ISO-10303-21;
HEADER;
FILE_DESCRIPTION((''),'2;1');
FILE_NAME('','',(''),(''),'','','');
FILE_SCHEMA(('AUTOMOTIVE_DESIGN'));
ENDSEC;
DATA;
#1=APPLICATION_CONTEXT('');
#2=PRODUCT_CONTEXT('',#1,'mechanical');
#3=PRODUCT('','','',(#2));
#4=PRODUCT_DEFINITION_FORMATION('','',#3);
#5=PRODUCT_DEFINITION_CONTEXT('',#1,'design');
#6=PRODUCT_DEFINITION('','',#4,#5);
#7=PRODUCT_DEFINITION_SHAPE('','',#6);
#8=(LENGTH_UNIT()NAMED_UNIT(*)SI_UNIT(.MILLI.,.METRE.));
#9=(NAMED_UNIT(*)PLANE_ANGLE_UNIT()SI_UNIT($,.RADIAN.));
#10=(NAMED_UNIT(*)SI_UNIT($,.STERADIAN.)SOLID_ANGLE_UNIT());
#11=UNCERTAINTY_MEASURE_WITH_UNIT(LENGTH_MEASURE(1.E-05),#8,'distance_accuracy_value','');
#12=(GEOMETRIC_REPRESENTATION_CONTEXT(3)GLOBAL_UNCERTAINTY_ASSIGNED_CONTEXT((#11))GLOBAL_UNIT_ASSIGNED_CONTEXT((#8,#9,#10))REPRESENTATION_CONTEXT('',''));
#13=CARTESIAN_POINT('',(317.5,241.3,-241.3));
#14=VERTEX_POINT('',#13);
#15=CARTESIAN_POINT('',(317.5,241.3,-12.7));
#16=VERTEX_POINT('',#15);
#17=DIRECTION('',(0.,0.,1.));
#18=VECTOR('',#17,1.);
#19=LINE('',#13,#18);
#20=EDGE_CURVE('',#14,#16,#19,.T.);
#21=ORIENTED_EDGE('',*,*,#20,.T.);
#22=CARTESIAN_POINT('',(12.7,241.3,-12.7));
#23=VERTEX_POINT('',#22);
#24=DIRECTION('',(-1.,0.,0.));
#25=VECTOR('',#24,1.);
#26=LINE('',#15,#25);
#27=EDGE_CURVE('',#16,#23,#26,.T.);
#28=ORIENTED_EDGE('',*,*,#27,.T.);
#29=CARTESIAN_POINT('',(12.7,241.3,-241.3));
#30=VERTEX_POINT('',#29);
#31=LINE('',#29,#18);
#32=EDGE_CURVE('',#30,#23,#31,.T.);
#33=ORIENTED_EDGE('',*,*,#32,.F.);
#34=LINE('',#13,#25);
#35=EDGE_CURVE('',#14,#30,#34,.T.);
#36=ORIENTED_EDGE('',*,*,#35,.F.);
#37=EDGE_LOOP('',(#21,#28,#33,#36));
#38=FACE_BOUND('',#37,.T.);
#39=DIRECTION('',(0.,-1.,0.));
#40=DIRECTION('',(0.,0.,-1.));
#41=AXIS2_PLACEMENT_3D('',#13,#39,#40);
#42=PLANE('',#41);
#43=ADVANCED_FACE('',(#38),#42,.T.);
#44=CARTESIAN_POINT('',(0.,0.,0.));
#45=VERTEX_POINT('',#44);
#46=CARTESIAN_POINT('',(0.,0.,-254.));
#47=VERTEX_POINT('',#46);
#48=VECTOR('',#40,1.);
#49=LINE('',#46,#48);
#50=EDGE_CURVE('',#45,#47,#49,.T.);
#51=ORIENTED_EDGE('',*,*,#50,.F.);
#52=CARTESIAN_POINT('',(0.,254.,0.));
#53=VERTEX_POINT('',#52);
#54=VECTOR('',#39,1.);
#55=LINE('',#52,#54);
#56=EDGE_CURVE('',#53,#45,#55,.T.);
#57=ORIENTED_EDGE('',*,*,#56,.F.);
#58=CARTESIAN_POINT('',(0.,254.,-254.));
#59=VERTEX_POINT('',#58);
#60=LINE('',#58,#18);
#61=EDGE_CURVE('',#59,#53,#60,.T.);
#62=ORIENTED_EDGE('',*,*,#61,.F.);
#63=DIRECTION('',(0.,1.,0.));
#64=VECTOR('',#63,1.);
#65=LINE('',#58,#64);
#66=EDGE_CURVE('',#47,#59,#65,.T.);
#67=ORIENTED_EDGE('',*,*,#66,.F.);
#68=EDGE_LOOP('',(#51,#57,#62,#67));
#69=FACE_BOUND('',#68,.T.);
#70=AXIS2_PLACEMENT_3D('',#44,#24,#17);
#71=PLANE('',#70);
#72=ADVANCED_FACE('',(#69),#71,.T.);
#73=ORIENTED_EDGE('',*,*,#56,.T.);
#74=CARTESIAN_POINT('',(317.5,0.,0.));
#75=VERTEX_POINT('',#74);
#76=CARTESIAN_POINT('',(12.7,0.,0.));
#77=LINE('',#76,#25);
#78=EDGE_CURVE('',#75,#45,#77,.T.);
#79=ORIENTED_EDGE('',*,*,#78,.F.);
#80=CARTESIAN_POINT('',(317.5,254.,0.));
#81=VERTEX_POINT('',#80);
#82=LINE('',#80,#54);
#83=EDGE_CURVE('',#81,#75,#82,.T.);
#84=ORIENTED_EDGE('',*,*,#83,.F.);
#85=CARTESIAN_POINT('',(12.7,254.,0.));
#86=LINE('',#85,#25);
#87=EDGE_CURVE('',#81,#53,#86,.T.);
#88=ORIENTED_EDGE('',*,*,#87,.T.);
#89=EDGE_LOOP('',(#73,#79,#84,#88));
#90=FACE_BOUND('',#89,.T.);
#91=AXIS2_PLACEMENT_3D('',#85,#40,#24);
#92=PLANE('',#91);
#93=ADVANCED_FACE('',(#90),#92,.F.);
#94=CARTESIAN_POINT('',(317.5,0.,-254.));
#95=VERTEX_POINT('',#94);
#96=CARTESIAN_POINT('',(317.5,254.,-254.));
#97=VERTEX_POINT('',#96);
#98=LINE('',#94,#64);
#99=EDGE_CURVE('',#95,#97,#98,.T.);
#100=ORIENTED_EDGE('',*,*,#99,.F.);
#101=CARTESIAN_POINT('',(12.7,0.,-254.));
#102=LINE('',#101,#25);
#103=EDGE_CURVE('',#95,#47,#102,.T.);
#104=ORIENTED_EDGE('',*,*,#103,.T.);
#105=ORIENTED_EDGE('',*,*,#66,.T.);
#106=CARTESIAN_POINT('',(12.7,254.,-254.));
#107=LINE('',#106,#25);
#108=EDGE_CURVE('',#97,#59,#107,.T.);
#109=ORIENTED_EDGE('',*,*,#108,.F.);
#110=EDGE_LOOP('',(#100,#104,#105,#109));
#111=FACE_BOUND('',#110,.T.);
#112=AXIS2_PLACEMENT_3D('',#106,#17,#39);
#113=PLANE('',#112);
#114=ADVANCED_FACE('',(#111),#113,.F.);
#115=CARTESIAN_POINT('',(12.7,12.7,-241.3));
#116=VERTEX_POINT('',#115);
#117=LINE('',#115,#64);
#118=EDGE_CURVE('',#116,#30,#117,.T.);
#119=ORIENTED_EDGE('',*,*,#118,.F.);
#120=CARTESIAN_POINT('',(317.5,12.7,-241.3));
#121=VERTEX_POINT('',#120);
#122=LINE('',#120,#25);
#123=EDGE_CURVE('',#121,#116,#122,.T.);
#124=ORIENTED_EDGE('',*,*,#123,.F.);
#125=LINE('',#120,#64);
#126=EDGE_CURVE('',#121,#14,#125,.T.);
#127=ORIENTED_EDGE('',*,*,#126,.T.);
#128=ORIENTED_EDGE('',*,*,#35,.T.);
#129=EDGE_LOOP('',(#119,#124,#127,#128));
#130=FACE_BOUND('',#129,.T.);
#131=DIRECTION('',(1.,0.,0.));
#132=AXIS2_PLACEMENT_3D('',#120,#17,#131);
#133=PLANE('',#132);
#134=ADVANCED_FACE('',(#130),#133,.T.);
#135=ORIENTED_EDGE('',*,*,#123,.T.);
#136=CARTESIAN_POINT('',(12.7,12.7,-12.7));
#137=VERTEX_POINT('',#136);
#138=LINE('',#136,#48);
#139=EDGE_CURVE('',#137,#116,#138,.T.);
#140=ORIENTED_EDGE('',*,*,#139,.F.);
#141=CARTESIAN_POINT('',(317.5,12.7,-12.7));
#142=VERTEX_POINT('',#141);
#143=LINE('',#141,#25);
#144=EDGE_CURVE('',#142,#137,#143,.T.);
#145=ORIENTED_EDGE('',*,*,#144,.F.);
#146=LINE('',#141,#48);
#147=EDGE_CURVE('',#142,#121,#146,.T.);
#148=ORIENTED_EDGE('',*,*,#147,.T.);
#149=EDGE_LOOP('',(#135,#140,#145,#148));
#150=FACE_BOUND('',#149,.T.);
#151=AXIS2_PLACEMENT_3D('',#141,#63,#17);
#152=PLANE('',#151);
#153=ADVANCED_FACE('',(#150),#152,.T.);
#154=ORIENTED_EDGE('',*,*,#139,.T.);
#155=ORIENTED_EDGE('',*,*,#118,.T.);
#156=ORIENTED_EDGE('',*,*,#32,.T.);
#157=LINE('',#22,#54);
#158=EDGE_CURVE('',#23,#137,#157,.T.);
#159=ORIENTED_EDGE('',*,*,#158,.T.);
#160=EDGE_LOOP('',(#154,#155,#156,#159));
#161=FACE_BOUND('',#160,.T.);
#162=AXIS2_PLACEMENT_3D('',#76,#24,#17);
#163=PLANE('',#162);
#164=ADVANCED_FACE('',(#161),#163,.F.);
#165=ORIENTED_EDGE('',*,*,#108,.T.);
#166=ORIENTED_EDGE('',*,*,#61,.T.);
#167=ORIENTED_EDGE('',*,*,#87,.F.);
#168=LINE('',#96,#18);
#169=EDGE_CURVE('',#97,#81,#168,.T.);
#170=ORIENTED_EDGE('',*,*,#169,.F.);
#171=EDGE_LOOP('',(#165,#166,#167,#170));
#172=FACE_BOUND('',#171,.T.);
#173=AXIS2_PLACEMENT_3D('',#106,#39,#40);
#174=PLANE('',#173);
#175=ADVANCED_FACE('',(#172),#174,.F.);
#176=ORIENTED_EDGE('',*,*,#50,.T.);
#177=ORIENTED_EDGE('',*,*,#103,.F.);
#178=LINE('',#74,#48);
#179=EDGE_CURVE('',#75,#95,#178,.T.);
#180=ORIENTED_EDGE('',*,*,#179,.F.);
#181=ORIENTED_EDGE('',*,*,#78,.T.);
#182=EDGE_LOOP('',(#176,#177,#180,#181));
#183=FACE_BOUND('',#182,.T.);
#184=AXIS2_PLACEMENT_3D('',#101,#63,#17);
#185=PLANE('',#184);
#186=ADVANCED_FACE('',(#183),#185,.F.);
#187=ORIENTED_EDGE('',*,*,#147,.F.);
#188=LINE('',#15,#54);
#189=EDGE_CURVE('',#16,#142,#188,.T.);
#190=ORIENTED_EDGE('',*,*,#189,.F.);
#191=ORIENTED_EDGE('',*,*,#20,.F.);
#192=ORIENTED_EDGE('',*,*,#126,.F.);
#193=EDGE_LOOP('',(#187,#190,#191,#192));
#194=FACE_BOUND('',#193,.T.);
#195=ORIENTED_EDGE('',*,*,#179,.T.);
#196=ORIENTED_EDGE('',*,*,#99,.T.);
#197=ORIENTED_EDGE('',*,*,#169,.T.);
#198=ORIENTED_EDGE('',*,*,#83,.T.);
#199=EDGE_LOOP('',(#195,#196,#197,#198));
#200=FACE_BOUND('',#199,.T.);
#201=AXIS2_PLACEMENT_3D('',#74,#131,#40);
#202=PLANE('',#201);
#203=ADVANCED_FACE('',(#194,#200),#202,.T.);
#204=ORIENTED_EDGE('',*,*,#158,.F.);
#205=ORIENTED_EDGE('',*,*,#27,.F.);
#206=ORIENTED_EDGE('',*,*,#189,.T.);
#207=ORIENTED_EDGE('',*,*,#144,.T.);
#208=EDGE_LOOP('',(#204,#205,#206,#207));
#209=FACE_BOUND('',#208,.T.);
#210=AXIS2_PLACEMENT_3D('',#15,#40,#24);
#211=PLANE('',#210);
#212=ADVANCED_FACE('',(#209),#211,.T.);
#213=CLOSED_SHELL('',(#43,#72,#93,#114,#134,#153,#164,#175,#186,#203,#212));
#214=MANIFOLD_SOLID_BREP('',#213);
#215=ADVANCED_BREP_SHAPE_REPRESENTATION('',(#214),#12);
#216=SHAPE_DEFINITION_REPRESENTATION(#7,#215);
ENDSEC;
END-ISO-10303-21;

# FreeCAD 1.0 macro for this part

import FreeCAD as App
import Part
import Sketcher

V = App.Vector
Q = App.Units.Quantity

doc = App.newDocument("Part")
body = doc.addObject("PartDesign::Body", "Body")

# Sketch on YZ plane
sketch1 = body.newObject("Sketcher::SketchObject", "Sketch")
sketch1.AttachmentSupport = (doc.getObject("YZ_Plane"), [""])
sketch1.MapMode = "FlatFace"
sketch1.addGeometry([
    Part.LineSegment(V(254, 0, 0), V(0, 0, 0)),
    Part.LineSegment(V(0, 0, 0), V(0, -254, 0)),
    Part.LineSegment(V(0, -254, 0), V(254, -254, 0)),
    Part.LineSegment(V(254, -254, 0), V(254, 0, 0)),
], False)
sketch1.addConstraint([
    Sketcher.Constraint("Coincident", 0, 2, 1, 1),
    Sketcher.Constraint("Coincident", 1, 2, 2, 1),
    Sketcher.Constraint("Coincident", 2, 2, 3, 1),
    Sketcher.Constraint("Coincident", 3, 2, 0, 1),
    Sketcher.Constraint("Horizontal", 0),
    Sketcher.Constraint("Vertical", 1),
    Sketcher.Constraint("Horizontal", 2),
    Sketcher.Constraint("Vertical", 3),
    Sketcher.Constraint("Coincident", 0, 2, -1, 1),
    Sketcher.Constraint("Equal", 2, 1),
    Sketcher.Constraint("DistanceX", 0, 2, 0, 1, Q("10 in")),
])
pad1 = body.newObject("PartDesign::Pad", "Pad")
pad1.Profile = sketch1
pad1.Length = Q("0.5 in")

# Sketch on YZ plane
sketch2 = body.newObject("Sketcher::SketchObject", "Sketch001")
sketch2.AttachmentSupport = (doc.getObject("YZ_Plane"), [""])
sketch2.MapMode = "FlatFace"
sketch2.AttachmentOffset = App.Placement(V(0, 0, 0.5 * 25.4), App.Rotation())
sketch2.addGeometry([
    Part.LineSegment(V(254, 0, 0), V(0, 0, 0)),  # 0
    Part.LineSegment(V(0, 0, 0), V(0, -254, 0)),  # 1
    Part.LineSegment(V(0, -254, 0), V(254, -254, 0)),  # 2
    Part.LineSegment(V(254, -254, 0), V(254, 0, 0)),  # 3
    Part.LineSegment(V(13, -241, 0), V(13, -13, 0)),  # 4
    Part.LineSegment(V(13, -13, 0), V(241, -13, 0)),  # 5
    Part.LineSegment(V(241, -13, 0), V(241, -241, 0)),  # 6
    Part.LineSegment(V(241, -241, 0), V(13, -241, 0)),  # 7
], False)
sketch2.addConstraint([
    Sketcher.Constraint("Coincident", 0, 2, 1, 1),
    Sketcher.Constraint("Coincident", 1, 2, 2, 1),
    Sketcher.Constraint("Coincident", 2, 2, 3, 1),
    Sketcher.Constraint("Coincident", 3, 2, 0, 1),
    Sketcher.Constraint("Coincident", 4, 2, 5, 1),
    Sketcher.Constraint("Coincident", 5, 2, 6, 1),
    Sketcher.Constraint("Coincident", 6, 2, 7, 1),
    Sketcher.Constraint("Coincident", 7, 2, 4, 1),
    Sketcher.Constraint("Horizontal", 0),
    Sketcher.Constraint("Vertical", 1),
    Sketcher.Constraint("Horizontal", 2),
    Sketcher.Constraint("Vertical", 3),
    Sketcher.Constraint("Vertical", 4),
    Sketcher.Constraint("Horizontal", 5),
    Sketcher.Constraint("Vertical", 6),
    Sketcher.Constraint("Horizontal", 7),
    Sketcher.Constraint("Coincident", 0, 2, -1, 1),
    Sketcher.Constraint("Equal", 2, 1),
    Sketcher.Constraint("Equal", 7, 4),
    Sketcher.Constraint("DistanceX", 0, 2, 0, 1, Q("10 in")),
    Sketcher.Constraint("DistanceX", 5, 1, 5, 2, Q("9 in")),
    Sketcher.Constraint("DistanceX", -1, 1, 4, 2, Q("0.5 in")),
    Sketcher.Constraint("DistanceY", 4, 2, -1, 1, Q("0.5 in")),
])
pad2 = body.newObject("PartDesign::Pad", "Pad001")
pad2.Profile = sketch2
pad2.Length = Q("12 in")

doc.recompute()
